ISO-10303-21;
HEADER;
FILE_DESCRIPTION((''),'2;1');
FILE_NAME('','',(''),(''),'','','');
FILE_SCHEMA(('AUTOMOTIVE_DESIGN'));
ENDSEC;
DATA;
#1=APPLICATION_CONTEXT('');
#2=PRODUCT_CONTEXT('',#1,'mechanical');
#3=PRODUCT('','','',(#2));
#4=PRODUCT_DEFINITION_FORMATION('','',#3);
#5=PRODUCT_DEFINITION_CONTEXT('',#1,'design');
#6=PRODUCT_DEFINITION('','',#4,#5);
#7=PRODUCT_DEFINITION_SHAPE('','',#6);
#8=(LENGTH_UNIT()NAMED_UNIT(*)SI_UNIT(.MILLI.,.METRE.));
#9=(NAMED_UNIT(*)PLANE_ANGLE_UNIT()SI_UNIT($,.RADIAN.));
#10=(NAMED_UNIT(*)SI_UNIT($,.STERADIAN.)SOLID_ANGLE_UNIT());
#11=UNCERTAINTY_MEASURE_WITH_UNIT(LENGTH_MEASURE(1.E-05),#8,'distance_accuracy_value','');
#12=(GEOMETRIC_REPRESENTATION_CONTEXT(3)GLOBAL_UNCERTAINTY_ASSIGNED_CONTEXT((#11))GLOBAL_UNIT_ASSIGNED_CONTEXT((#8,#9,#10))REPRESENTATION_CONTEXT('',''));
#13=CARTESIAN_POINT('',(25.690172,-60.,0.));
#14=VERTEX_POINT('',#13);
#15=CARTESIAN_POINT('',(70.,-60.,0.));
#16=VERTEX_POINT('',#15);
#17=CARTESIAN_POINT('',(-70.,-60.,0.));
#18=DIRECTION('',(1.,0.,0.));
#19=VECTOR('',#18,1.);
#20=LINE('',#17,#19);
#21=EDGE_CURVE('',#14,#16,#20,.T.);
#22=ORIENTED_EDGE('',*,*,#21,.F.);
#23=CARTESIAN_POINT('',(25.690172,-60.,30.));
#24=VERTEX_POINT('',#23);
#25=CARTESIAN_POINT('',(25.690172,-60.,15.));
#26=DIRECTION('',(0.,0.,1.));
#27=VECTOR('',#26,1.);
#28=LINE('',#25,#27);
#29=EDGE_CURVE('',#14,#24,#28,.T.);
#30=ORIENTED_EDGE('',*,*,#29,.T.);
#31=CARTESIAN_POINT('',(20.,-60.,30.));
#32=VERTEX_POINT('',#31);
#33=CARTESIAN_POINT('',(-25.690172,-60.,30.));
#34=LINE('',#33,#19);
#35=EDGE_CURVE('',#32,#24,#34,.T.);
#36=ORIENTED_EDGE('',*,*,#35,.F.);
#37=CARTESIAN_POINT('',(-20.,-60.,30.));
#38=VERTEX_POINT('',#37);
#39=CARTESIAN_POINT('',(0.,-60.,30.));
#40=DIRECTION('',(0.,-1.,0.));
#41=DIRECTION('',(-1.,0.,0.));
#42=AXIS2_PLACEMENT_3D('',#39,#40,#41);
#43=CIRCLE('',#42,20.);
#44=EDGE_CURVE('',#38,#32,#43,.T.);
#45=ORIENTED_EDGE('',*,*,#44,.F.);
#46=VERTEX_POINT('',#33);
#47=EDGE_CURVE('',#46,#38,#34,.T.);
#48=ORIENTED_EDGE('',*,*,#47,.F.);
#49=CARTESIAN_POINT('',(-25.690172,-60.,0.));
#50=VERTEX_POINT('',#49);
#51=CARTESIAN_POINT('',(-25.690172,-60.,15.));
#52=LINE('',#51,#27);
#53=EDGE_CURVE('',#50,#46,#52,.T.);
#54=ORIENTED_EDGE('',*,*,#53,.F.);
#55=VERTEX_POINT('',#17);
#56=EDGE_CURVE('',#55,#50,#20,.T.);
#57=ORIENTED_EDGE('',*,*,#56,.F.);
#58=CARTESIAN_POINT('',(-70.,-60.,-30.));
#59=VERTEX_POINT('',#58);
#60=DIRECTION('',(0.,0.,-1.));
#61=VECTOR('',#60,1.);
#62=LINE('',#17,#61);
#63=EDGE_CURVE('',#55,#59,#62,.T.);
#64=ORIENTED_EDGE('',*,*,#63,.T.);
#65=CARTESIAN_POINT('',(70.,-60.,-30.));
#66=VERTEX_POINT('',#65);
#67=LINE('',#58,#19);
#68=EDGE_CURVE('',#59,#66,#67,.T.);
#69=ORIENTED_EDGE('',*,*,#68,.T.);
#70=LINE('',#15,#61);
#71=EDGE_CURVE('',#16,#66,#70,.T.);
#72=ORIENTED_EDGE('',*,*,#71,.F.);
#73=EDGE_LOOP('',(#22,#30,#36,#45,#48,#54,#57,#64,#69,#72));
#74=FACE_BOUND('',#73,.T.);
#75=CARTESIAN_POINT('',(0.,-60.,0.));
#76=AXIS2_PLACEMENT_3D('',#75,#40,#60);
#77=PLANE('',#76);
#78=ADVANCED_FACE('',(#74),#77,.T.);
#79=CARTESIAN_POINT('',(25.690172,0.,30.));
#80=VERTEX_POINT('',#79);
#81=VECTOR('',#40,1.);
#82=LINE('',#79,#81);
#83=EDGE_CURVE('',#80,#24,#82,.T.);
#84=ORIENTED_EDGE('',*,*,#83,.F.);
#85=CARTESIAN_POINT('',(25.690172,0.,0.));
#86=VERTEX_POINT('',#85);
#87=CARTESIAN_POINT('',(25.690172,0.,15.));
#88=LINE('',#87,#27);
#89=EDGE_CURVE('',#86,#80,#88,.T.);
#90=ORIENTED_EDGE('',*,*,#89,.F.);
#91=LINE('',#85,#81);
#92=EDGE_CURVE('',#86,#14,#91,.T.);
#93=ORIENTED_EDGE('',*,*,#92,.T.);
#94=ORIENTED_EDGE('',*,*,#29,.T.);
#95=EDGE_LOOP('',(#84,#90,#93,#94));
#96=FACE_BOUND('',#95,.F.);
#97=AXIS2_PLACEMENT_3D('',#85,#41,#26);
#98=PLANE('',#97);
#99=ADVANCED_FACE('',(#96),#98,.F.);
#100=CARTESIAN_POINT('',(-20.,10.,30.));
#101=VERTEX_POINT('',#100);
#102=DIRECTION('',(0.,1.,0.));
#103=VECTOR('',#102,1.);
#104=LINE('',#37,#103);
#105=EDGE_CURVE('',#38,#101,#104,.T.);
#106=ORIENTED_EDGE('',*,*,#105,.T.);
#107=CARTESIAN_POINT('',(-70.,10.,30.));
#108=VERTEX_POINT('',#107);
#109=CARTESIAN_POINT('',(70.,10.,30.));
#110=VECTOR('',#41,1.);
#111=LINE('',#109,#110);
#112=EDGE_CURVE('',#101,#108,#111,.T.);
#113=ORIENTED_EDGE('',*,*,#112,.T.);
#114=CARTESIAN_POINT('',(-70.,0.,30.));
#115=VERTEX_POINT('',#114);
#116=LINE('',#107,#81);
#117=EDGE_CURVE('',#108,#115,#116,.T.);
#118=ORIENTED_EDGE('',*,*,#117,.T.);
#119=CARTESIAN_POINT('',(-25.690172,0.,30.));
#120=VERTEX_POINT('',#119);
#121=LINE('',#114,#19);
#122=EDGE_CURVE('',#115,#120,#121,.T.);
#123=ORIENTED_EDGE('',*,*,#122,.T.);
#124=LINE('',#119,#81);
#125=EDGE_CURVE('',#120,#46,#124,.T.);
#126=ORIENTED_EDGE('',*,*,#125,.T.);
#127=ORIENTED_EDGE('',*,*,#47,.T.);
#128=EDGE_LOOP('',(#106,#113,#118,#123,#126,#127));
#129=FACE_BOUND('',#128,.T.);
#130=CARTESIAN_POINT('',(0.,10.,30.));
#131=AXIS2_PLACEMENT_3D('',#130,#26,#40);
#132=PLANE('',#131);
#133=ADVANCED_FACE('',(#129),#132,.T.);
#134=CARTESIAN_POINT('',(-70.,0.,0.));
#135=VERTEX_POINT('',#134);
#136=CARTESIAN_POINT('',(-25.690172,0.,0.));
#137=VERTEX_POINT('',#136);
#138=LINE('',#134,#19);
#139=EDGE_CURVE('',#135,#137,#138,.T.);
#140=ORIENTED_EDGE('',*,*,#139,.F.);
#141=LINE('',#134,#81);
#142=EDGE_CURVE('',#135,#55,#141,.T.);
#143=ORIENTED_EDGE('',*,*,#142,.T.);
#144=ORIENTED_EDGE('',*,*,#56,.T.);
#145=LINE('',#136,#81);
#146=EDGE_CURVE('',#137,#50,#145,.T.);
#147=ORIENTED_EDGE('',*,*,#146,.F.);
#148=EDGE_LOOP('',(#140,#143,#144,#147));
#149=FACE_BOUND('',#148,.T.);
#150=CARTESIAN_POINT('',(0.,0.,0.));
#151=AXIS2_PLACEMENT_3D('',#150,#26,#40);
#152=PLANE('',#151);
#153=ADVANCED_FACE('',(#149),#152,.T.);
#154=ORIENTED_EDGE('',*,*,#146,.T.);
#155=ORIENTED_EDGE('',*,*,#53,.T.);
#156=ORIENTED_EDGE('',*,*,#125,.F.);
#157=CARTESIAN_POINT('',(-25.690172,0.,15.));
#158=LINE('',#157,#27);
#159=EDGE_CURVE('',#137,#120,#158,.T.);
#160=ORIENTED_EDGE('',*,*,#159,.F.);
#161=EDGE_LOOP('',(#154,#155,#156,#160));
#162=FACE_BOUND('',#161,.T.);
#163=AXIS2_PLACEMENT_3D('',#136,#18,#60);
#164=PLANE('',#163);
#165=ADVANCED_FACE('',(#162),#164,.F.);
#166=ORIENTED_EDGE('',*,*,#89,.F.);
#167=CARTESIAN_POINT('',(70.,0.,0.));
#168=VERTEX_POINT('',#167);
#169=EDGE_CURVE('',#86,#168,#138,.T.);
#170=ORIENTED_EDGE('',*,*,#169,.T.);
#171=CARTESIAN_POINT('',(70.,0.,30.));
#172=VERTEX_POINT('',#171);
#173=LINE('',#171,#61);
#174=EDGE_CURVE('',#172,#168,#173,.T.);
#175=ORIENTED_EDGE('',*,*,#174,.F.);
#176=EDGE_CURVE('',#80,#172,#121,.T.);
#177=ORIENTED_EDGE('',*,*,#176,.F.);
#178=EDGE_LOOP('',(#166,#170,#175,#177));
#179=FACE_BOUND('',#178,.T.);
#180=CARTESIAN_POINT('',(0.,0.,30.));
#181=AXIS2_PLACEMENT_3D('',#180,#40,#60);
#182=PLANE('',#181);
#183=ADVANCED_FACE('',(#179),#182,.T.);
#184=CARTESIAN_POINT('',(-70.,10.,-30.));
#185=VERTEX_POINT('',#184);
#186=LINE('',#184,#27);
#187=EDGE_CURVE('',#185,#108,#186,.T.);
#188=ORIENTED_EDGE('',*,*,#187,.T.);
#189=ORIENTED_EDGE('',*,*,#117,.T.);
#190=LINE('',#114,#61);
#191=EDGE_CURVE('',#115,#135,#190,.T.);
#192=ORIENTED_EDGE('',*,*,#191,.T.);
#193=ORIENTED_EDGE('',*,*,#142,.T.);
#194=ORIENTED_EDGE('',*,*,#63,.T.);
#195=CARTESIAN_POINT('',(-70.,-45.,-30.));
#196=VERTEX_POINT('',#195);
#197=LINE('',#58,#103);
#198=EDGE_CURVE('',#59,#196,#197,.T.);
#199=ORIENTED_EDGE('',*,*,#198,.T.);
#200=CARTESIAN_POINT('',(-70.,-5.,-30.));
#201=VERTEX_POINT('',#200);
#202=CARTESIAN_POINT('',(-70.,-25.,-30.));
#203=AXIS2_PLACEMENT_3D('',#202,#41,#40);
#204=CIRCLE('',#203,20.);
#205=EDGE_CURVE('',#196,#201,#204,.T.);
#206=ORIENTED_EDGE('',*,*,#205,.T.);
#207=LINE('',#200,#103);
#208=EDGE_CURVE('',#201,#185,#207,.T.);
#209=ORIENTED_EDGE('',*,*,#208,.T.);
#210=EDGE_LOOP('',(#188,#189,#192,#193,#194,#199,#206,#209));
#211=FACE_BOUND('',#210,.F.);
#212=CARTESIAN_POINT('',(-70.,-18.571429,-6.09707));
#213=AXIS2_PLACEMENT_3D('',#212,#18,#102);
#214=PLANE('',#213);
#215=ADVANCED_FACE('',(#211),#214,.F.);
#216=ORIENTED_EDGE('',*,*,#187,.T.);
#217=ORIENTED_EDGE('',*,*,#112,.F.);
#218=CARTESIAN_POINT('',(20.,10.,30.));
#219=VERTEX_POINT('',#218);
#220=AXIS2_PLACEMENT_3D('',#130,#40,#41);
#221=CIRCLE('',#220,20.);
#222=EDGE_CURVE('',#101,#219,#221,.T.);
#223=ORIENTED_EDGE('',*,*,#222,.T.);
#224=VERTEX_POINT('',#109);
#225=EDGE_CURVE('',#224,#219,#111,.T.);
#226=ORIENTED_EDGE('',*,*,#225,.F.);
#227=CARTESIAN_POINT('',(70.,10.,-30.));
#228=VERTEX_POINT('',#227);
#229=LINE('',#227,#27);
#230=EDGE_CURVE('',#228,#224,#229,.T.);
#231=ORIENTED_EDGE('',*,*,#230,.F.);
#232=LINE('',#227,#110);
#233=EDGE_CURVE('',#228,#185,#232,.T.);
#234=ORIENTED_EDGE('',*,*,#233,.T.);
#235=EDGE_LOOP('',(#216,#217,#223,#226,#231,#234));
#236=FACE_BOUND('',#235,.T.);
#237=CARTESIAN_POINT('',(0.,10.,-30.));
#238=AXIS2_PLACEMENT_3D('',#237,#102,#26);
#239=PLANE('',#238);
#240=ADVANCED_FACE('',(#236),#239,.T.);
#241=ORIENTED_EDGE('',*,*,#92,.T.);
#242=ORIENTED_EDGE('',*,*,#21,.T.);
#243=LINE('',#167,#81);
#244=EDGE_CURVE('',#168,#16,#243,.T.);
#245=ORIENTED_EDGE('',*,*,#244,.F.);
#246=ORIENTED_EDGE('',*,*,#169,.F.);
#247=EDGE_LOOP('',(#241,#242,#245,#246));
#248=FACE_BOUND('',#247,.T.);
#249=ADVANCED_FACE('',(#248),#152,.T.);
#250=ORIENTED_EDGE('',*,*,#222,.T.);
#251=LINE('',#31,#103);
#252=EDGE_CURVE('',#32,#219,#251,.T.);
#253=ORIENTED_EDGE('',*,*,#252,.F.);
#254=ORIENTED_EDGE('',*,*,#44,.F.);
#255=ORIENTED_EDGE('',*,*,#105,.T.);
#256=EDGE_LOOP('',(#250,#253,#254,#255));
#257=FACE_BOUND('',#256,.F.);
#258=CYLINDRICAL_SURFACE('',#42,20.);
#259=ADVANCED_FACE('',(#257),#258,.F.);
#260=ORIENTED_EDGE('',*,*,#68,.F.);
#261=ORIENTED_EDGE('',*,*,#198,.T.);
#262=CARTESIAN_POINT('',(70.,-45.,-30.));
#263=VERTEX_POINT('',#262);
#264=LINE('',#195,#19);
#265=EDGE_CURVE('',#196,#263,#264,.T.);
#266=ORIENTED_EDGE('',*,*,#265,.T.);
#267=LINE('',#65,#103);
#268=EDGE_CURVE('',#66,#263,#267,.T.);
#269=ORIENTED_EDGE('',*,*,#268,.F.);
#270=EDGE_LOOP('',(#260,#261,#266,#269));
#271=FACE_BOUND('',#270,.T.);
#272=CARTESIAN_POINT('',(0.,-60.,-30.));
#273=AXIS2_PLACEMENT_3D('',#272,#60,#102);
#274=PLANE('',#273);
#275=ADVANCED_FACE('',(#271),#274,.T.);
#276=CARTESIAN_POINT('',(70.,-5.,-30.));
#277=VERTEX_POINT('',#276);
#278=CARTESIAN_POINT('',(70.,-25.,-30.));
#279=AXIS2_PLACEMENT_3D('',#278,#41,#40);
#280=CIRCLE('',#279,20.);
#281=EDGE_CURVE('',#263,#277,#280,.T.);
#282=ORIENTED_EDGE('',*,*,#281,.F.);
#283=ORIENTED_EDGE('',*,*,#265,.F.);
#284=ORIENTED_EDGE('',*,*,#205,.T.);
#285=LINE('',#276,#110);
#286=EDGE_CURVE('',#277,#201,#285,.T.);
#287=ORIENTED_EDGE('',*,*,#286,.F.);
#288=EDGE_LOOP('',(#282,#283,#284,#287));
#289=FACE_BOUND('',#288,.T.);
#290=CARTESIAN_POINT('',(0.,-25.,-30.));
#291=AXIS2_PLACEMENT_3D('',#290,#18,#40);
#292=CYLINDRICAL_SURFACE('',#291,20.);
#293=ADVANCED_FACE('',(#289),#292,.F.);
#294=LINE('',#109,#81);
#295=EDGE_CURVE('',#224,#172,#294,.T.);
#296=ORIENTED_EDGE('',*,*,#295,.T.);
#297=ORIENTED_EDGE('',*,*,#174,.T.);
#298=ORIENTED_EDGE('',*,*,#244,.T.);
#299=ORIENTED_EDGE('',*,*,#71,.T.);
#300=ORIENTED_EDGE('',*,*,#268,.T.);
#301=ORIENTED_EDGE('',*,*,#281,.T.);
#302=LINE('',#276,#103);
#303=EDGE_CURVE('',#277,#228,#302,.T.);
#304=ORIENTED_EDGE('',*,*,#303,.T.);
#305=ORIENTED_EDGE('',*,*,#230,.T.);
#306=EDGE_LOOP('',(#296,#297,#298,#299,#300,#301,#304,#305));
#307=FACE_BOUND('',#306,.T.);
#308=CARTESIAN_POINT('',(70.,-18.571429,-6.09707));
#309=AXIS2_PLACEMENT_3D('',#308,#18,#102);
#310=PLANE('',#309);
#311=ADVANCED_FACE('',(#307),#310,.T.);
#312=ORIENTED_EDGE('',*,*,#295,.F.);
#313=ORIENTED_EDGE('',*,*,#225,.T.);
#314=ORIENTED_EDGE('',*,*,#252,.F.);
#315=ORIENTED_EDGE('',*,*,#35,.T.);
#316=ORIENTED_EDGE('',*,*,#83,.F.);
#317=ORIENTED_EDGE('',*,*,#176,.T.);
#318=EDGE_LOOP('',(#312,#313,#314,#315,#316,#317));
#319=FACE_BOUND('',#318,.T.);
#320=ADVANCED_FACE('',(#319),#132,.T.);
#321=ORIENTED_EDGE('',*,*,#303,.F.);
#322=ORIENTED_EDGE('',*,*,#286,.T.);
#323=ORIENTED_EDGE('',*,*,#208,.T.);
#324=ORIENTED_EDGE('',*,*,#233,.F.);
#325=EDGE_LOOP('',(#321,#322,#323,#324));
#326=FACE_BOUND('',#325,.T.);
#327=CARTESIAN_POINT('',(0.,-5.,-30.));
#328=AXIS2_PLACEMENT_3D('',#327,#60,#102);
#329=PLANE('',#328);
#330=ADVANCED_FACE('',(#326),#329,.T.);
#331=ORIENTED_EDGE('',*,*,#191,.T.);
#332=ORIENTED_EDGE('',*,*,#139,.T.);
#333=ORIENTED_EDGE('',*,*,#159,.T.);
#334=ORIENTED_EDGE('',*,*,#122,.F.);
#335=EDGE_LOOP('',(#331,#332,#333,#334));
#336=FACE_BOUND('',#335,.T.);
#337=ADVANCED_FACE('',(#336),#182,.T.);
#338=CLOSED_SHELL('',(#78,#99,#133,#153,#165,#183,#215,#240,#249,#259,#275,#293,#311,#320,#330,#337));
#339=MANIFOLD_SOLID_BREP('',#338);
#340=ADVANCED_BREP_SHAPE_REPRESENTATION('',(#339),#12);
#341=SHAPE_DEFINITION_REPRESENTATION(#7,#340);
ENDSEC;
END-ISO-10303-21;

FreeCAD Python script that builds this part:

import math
import FreeCAD as App
import Part
import Sketcher
Q = App.Units.Quantity


def add_polygon(sketch, points):
    """Adds a closed chain of lines whose ends are joined by coincident constraints."""
    first, n = sketch.GeometryCount, len(points)
    for a, b in zip(points, points[1:] + points[:1]):
        sketch.addGeometry(Part.LineSegment(App.Vector(*a, 0), App.Vector(*b, 0)), False)
    for i in range(n):
        sketch.addConstraint(Sketcher.Constraint("Coincident", first + i, 2, first + (i + 1) % n, 1))

doc = App.newDocument("Part")
body = doc.addObject("PartDesign::Body", "Body")

# Sketch on YZ plane
sketch1 = doc.addObject("Sketcher::SketchObject", "Sketch")
body.addObject(sketch1)
sketch1.AttachmentSupport = (doc.YZ_Plane, [""])
sketch1.MapMode = "FlatFace"
sketch1.addGeometry([
    Part.LineSegment(App.Vector(10, 30, 0), App.Vector(0, 30, 0)),  # 0
    Part.LineSegment(App.Vector(0, 30, 0), App.Vector(0, 0, 0)),  # 1
    Part.LineSegment(App.Vector(0, 0, 0), App.Vector(-60, 0, 0)),  # 2
    Part.LineSegment(App.Vector(-60, 0, 0), App.Vector(-60, -30, 0)),  # 3
    Part.LineSegment(App.Vector(-60, -30, 0), App.Vector(-45, -30, 0)),  # 4
    Part.ArcOfCircle(Part.Circle(App.Vector(-25, -30, 0), App.Vector(0, 0, 1), 20), math.radians(0), math.radians(180)),  # 5
    Part.LineSegment(App.Vector(-5, -30, 0), App.Vector(10, -30, 0)),  # 6
    Part.LineSegment(App.Vector(10, -30, 0), App.Vector(10, 30, 0)),  # 7
], False)
sketch1.addConstraint([
    Sketcher.Constraint("Coincident", 0, 2, 1, 1),
    Sketcher.Constraint("Coincident", 1, 2, 2, 1),
    Sketcher.Constraint("Coincident", 2, 2, 3, 1),
    Sketcher.Constraint("Coincident", 3, 2, 4, 1),
    Sketcher.Constraint("Coincident", 4, 2, 5, 2),
    Sketcher.Constraint("Coincident", 5, 1, 6, 1),
    Sketcher.Constraint("Coincident", 6, 2, 7, 1),
    Sketcher.Constraint("Coincident", 7, 2, 0, 1),
    Sketcher.Constraint("Horizontal", 0),
    Sketcher.Constraint("Vertical", 1),
    Sketcher.Constraint("Horizontal", 2),
    Sketcher.Constraint("Vertical", 3),
    Sketcher.Constraint("Horizontal", 4),
    Sketcher.Constraint("Horizontal", 6),
    Sketcher.Constraint("Vertical", 7),
    Sketcher.Constraint("Coincident", 1, 2, -1, 1),
    Sketcher.Constraint("Horizontal", 5, 3, 3, 2),
    Sketcher.Constraint("Horizontal", 4, 2, 5, 1),
    Sketcher.Constraint("Equal", 4, 6),
    Sketcher.Constraint("Equal", 1, 3),
    Sketcher.Constraint("Equal", 2, 7),
    Sketcher.Constraint("Radius", 5, Q("20 mm")),
    Sketcher.Constraint("DistanceX", 0, 2, 0, 1, Q("10 mm")),
    Sketcher.Constraint("DistanceX", 2, 2, 2, 1, Q("60 mm")),
])
pad1 = doc.addObject("PartDesign::Pad", "Pad")
body.addObject(pad1)
pad1.Profile = sketch1
pad1.Length = 140
pad1.Midplane = True

# Sketch on XZ plane
sketch2 = doc.addObject("Sketcher::SketchObject", "Sketch001")
body.addObject(sketch2)
sketch2.AttachmentSupport = (doc.XZ_Plane, [""])
sketch2.MapMode = "FlatFace"
add_polygon(sketch2, [(0, 30), (0, 0), (26, 0), (26, 30)])  # lines 0-3
sketch2.addConstraint([
    Sketcher.Constraint("Vertical", 0),
    Sketcher.Constraint("Horizontal", 1),
    Sketcher.Constraint("Vertical", 2),
    Sketcher.Constraint("Horizontal", 3),
    Sketcher.Constraint("Coincident", 0, 2, -1, 1),
    Sketcher.Constraint("DistanceY", 0, 2, 0, 1, Q("30 mm")),
    Sketcher.Constraint("DistanceX", 1, 1, 1, 2, Q("25.690172 mm")),
])
pad2 = doc.addObject("PartDesign::Pad", "Pad001")
body.addObject(pad2)
pad2.Profile = sketch2
pad2.Length = 60
body2 = doc.addObject("PartDesign::Body", "Body001")
doc.recompute()

body2.BaseFeature = body
doc.recompute()

mirroring = doc.addObject("Part::Mirroring", "Mirroring")
mirroring.Source = body
mirroring.Base = App.Vector(0, 0, 0)
mirroring.Normal = App.Vector(1, 0, 0)
body3 = doc.addObject("PartDesign::Body", "Body002")
body3.BaseFeature = mirroring
boolean = doc.addObject("PartDesign::Boolean", "Boolean")
body2.addObject(boolean)
boolean.Type = "Fuse"
boolean.addObjects([body3])
doc.recompute()

# Sketch on XZ plane
sketch3 = doc.addObject("Sketcher::SketchObject", "Sketch002")
body2.addObject(sketch3)
sketch3.AttachmentSupport = (doc.getObject("XZ_Plane001"), [""])
sketch3.MapMode = "FlatFace"
sketch3.AttachmentOffset = App.Placement(App.Vector(0, 0, 60), App.Rotation())
sketch3.addGeometry([
    Part.LineSegment(App.Vector(20, 30, 0), App.Vector(-20, 30, 0)),
    Part.ArcOfCircle(Part.Circle(App.Vector(0, 30, 0), App.Vector(0, 0, 1), 20), math.radians(180), math.radians(360)),
], False)
sketch3.addConstraint([
    Sketcher.Constraint("Coincident", 0, 1, 1, 2),
    Sketcher.Constraint("Coincident", 1, 1, 0, 2),
    Sketcher.Constraint("Horizontal", 0),
    Sketcher.Constraint("PointOnObject", 1, 3, -2),
    Sketcher.Constraint("Horizontal", 1, 3, 0, 1),
    Sketcher.Constraint("Radius", 1, Q("20 mm")),
    Sketcher.Constraint("DistanceY", -1, 1, 1, 3, Q("30 mm")),
])
pocket1 = doc.addObject("PartDesign::Pocket", "Pocket")
body2.addObject(pocket1)
pocket1.Profile = sketch3
pocket1.Type = "ThroughAll"
mirroring.Visibility = False

doc.recompute()
